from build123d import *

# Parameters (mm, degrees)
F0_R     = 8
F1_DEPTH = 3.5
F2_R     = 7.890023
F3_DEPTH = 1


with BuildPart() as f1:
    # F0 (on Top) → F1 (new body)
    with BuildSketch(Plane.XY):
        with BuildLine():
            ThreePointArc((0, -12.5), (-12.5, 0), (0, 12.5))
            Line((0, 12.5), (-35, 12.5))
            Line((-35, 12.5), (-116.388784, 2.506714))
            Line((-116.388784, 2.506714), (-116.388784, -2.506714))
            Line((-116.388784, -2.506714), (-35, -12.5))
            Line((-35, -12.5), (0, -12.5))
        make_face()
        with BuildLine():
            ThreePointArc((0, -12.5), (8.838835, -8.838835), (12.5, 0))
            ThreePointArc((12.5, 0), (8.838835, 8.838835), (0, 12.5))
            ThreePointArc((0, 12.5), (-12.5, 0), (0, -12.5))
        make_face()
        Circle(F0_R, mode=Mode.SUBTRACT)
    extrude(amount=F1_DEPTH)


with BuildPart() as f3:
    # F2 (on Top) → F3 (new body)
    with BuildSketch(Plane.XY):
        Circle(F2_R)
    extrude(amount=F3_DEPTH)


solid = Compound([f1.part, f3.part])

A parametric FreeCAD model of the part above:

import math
import FreeCAD as App
import Part
import Sketcher

V = App.Vector
Q = App.Units.Quantity

doc = App.newDocument("Part")
params = doc.addObject("Spreadsheet::Sheet", "Params")
for row, (alias, value) in enumerate([
    ("sketch1_diameter", "16 mm"),
    ("sketch1_radius", "12.499999 mm"),
    ("sketch1_width", "35 mm"),
    ("sketch1_length", "82 mm"),
    ("pad1_length", "3.5 mm"),
    ("pad2_length", "1 mm"),
], start=1):
    params.set(f"A{row}", alias)
    params.set(f"B{row}", "=" + value)
    params.setAlias(f"B{row}", alias)

body = doc.addObject("PartDesign::Body", "Body")

# Sketch on XY plane
sketch1 = doc.addObject("Sketcher::SketchObject", "Sketch")
body.addObject(sketch1)
sketch1.AttachmentSupport = (doc.XY_Plane, [""])
sketch1.MapMode = "FlatFace"
sketch1.addGeometry(Part.LineSegment(V(0, 12, 0), V(-35, 12, 0)), False)
sketch1.addGeometry(Part.LineSegment(V(-35, 12, 0), V(-116, 3, 0)), False)
sketch1.addGeometry(Part.LineSegment(V(-116, 3, 0), V(-116, -3, 0)), False)
sketch1.addGeometry(Part.LineSegment(V(-116, -3, 0), V(-35, -12, 0)), False)
sketch1.addGeometry(Part.LineSegment(V(-35, -12, 0), V(0, -12, 0)), False)
sketch1.addGeometry(Part.ArcOfCircle(Part.Circle(V(0, 0, 0), V(0, 0, 1), 12), math.radians(-90), math.radians(0)), False)
sketch1.addGeometry(Part.ArcOfCircle(Part.Circle(V(0, 0, 0), V(0, 0, 1), 12), math.radians(0), math.radians(90)), False)
sketch1.addGeometry(Part.Circle(V(0, 0, 0), V(0, 0, 1), 8), False)
sketch1.addConstraint(Sketcher.Constraint("Coincident", 0, 2, 1, 1))
sketch1.addConstraint(Sketcher.Constraint("Coincident", 1, 2, 2, 1))
sketch1.addConstraint(Sketcher.Constraint("Coincident", 2, 2, 3, 1))
sketch1.addConstraint(Sketcher.Constraint("Coincident", 3, 2, 4, 1))
sketch1.addConstraint(Sketcher.Constraint("Tangent", 4, 2, 5, 1))
sketch1.addConstraint(Sketcher.Constraint("Tangent", 5, 2, 6, 1))
sketch1.addConstraint(Sketcher.Constraint("Tangent", 6, 2, 0, 1))
sketch1.addConstraint(Sketcher.Constraint("Horizontal", 0))
sketch1.addConstraint(Sketcher.Constraint("Vertical", 2))
sketch1.addConstraint(Sketcher.Constraint("Horizontal", 4))
sketch1.addConstraint(Sketcher.Constraint("Coincident", 5, 3, -1, 1))
sketch1.addConstraint(Sketcher.Constraint("Coincident", 7, 3, -1, 1))
sketch1.addConstraint(Sketcher.Constraint("Equal", 5, 6))
sketch1.addConstraint(Sketcher.Constraint("PointOnObject", 5, 2, -1))
sketch1.addConstraint(Sketcher.Constraint("Vertical", 0, 2, 3, 2))
sketch1.addConstraint(Sketcher.Constraint("Equal", 1, 3))
sketch1.addConstraint(Sketcher.Constraint("Diameter", 7, Q("16 mm")))
sketch1.addConstraint(Sketcher.Constraint("Radius", 5, Q("12.499999 mm")))
sketch1.addConstraint(Sketcher.Constraint("DistanceX", 0, 2, 0, 1, Q("35 mm")))
sketch1.addConstraint(Sketcher.Constraint("Angle", 1, Q("-173 deg")))
sketch1.addConstraint(Sketcher.Constraint("Distance", 1, Q("82 mm")))
sketch1.setExpression("Constraints[16]", "Params.sketch1_diameter")
sketch1.setExpression("Constraints[17]", "Params.sketch1_radius")
sketch1.setExpression("Constraints[18]", "Params.sketch1_width")
sketch1.setExpression("Constraints[20]", "Params.sketch1_length")
pad1 = doc.addObject("PartDesign::Pad", "Pad")
body.addObject(pad1)
pad1.Profile = sketch1
pad1.setExpression("Length", "Params.pad1_length")
body2 = doc.addObject("PartDesign::Body", "Body001")

# Sketch on XY plane
sketch2 = doc.addObject("Sketcher::SketchObject", "Sketch001")
body2.addObject(sketch2)
sketch2.AttachmentSupport = (doc.getObject("XY_Plane001"), [""])
sketch2.MapMode = "FlatFace"
sketch2.addGeometry(Part.Circle(V(0, 0, 0), V(0, 0, 1), 8), False)
sketch2.addConstraint(Sketcher.Constraint("Coincident", 0, 3, -1, 1))
sketch2.addConstraint(Sketcher.Constraint("Diameter", 0, Q("15.780046 mm")))
pad2 = doc.addObject("PartDesign::Pad", "Pad001")
body2.addObject(pad2)
pad2.Profile = sketch2
pad2.setExpression("Length", "Params.pad2_length")

doc.recompute()
